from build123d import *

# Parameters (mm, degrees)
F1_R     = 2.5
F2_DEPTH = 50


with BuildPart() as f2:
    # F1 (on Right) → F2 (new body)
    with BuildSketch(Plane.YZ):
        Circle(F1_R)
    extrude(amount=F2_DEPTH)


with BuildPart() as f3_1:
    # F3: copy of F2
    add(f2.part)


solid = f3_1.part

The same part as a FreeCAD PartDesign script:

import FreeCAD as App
import Part
import Sketcher
from FreeCAD import Vector
Q = App.Units.Quantity

doc = App.newDocument("Part")
body = doc.addObject("PartDesign::Body", "Body")

sketch1 = body.newObject("Sketcher::SketchObject", "Sketch")
sketch1.AttachmentSupport = (doc.getObject("YZ_Plane"), [""])
sketch1.MapMode = "FlatFace"
sketch1.addGeometry(Part.Circle(Vector(0, 0, 0), Vector(0, 0, 1), 2.5), False)
sketch1.addConstraint([
    Sketcher.Constraint("Coincident", 0, 3, -1, 1),
    Sketcher.Constraint("Diameter", 0, Q("5 mm")),
])
pad1 = body.newObject("PartDesign::Pad", "Pad")
pad1.Profile = sketch1
pad1.Length = 50

doc.recompute()
